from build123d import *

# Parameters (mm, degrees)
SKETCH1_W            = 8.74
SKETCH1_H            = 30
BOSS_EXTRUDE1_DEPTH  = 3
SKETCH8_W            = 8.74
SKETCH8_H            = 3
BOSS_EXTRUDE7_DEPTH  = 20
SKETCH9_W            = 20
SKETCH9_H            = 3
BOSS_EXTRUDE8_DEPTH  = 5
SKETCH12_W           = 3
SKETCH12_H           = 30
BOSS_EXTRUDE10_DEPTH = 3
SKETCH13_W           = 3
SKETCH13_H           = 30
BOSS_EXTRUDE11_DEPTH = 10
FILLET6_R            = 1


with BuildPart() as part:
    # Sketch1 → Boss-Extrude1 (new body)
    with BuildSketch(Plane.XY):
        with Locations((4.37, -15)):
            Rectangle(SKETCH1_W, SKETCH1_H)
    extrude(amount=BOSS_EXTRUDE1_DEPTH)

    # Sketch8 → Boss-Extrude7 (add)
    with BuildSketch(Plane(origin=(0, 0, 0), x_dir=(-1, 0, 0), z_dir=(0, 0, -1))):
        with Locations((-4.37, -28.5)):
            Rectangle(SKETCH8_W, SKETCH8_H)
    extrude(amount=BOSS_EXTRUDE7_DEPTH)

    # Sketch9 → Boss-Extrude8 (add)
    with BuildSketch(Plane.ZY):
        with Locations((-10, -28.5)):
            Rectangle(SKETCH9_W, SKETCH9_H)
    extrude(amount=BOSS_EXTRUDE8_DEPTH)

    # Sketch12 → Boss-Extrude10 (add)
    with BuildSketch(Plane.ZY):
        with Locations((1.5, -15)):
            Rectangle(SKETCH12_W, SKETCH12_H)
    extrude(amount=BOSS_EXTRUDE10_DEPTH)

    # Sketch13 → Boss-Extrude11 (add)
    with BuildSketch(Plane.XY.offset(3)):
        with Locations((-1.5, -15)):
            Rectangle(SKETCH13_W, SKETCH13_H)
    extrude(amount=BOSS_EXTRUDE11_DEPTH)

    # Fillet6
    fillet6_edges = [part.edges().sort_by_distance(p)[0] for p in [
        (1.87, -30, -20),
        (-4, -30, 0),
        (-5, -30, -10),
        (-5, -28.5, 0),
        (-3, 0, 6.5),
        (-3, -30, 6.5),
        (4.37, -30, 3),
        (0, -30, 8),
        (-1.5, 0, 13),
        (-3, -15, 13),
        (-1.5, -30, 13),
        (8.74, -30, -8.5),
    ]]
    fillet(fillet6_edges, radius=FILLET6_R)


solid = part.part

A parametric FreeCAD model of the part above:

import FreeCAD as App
import Part
import Sketcher
from FreeCAD import Vector
Q = App.Units.Quantity


def edges_at(feature, points):
    """Names of the edges that pass closest to the given points."""
    edges = feature.Shape.Edges
    near = lambda p: min(range(len(edges)), key=lambda i: edges[i].distToShape(Part.Vertex(*p))[0])
    return sorted({f"Edge{near(p) + 1}" for p in points})

doc = App.newDocument("Part")
body = doc.addObject("PartDesign::Body", "Body")

sketch1 = body.newObject("Sketcher::SketchObject", "Sketch")
sketch1.AttachmentSupport = (doc.getObject("XY_Plane"), [""])
sketch1.MapMode = "FlatFace"
sketch1.addGeometry([
    Part.LineSegment(Vector(0, 0, 0), Vector(0, -30, 0)),
    Part.LineSegment(Vector(0, -30, 0), Vector(9, -30, 0)),
    Part.LineSegment(Vector(9, -30, 0), Vector(9, 0, 0)),
    Part.LineSegment(Vector(9, 0, 0), Vector(0, 0, 0)),
], False)
sketch1.addConstraint([
    Sketcher.Constraint("Coincident", 0, 2, 1, 1),
    Sketcher.Constraint("Coincident", 1, 2, 2, 1),
    Sketcher.Constraint("Coincident", 2, 2, 3, 1),
    Sketcher.Constraint("Coincident", 3, 2, 0, 1),
    Sketcher.Constraint("Vertical", 0),
    Sketcher.Constraint("Horizontal", 1),
    Sketcher.Constraint("Vertical", 2),
    Sketcher.Constraint("Horizontal", 3),
    Sketcher.Constraint("Coincident", 3, 2, -1, 1),
    Sketcher.Constraint("DistanceY", 0, 2, 0, 1, Q("30 mm")),
    Sketcher.Constraint("DistanceX", 1, 1, 1, 2, Q("8.74 mm")),
])
pad1 = body.newObject("PartDesign::Pad", "Pad")
pad1.Profile = sketch1
pad1.Length = 3

sketch2 = body.newObject("Sketcher::SketchObject", "Sketch001")
sketch2.AttachmentSupport = (doc.getObject("XY_Plane"), [""])
sketch2.MapMode = "FlatFace"
sketch2.addGeometry([
    Part.LineSegment(Vector(8.7, -27, 0), Vector(8.7, -30, 0)),
    Part.LineSegment(Vector(8.7, -30, 0), Vector(0, -30, 0)),
    Part.LineSegment(Vector(0, -30, 0), Vector(0, -27, 0)),
    Part.LineSegment(Vector(0, -27, 0), Vector(8.7, -27, 0)),
], False)
sketch2.addConstraint([
    Sketcher.Constraint("Coincident", 0, 2, 1, 1),
    Sketcher.Constraint("Coincident", 1, 2, 2, 1),
    Sketcher.Constraint("Coincident", 2, 2, 3, 1),
    Sketcher.Constraint("Coincident", 3, 2, 0, 1),
    Sketcher.Constraint("Vertical", 0),
    Sketcher.Constraint("Horizontal", 1),
    Sketcher.Constraint("Vertical", 2),
    Sketcher.Constraint("Horizontal", 3),
    Sketcher.Constraint("PointOnObject", 1, 2, -2),
    Sketcher.Constraint("DistanceY", 0, 2, 0, 1, Q("3 mm")),
    Sketcher.Constraint("DistanceY", 0, 2, -1, 1, Q("30 mm")),
    Sketcher.Constraint("DistanceX", 1, 2, 1, 1, Q("8.74 mm")),
])
pad2 = body.newObject("PartDesign::Pad", "Pad001")
pad2.Profile = sketch2
pad2.Length = 20
pad2.Reversed = True

sketch3 = body.newObject("Sketcher::SketchObject", "Sketch002")
sketch3.AttachmentSupport = (doc.getObject("YZ_Plane"), [""])
sketch3.MapMode = "FlatFace"
sketch3.addGeometry([
    Part.LineSegment(Vector(-27, -20, 0), Vector(-30, -20, 0)),
    Part.LineSegment(Vector(-30, -20, 0), Vector(-30, 0, 0)),
    Part.LineSegment(Vector(-30, 0, 0), Vector(-27, 0, 0)),
    Part.LineSegment(Vector(-27, 0, 0), Vector(-27, -20, 0)),
], False)
sketch3.addConstraint([
    Sketcher.Constraint("Coincident", 0, 2, 1, 1),
    Sketcher.Constraint("Coincident", 1, 2, 2, 1),
    Sketcher.Constraint("Coincident", 2, 2, 3, 1),
    Sketcher.Constraint("Coincident", 3, 2, 0, 1),
    Sketcher.Constraint("Horizontal", 0),
    Sketcher.Constraint("Vertical", 1),
    Sketcher.Constraint("Horizontal", 2),
    Sketcher.Constraint("Vertical", 3),
    Sketcher.Constraint("PointOnObject", 1, 2, -1),
    Sketcher.Constraint("DistanceX", 0, 2, 0, 1, Q("3 mm")),
    Sketcher.Constraint("DistanceY", 1, 1, 1, 2, Q("20 mm")),
    Sketcher.Constraint("DistanceX", 0, 2, -1, 1, Q("30 mm")),
])
pad3 = body.newObject("PartDesign::Pad", "Pad002")
pad3.Profile = sketch3
pad3.Length = 5
pad3.Reversed = True

sketch4 = body.newObject("Sketcher::SketchObject", "Sketch003")
sketch4.AttachmentSupport = (doc.getObject("YZ_Plane"), [""])
sketch4.MapMode = "FlatFace"
sketch4.addGeometry([
    Part.LineSegment(Vector(0, 0, 0), Vector(-30, 0, 0)),
    Part.LineSegment(Vector(-30, 0, 0), Vector(-30, 3, 0)),
    Part.LineSegment(Vector(-30, 3, 0), Vector(0, 3, 0)),
    Part.LineSegment(Vector(0, 3, 0), Vector(0, 0, 0)),
], False)
sketch4.addConstraint([
    Sketcher.Constraint("Coincident", 0, 2, 1, 1),
    Sketcher.Constraint("Coincident", 1, 2, 2, 1),
    Sketcher.Constraint("Coincident", 2, 2, 3, 1),
    Sketcher.Constraint("Coincident", 3, 2, 0, 1),
    Sketcher.Constraint("Horizontal", 0),
    Sketcher.Constraint("Vertical", 1),
    Sketcher.Constraint("Horizontal", 2),
    Sketcher.Constraint("Vertical", 3),
    Sketcher.Constraint("Coincident", 3, 2, -1, 1),
    Sketcher.Constraint("DistanceX", 0, 2, 0, 1, Q("30 mm")),
    Sketcher.Constraint("DistanceY", 1, 1, 1, 2, Q("3 mm")),
])
pad4 = body.newObject("PartDesign::Pad", "Pad003")
pad4.Profile = sketch4
pad4.Length = 3
pad4.Reversed = True

sketch5 = body.newObject("Sketcher::SketchObject", "Sketch004")
sketch5.AttachmentSupport = (doc.getObject("XY_Plane"), [""])
sketch5.MapMode = "FlatFace"
sketch5.AttachmentOffset = App.Placement(Vector(0, 0, 3), App.Rotation())
sketch5.addGeometry([
    Part.LineSegment(Vector(-3, 0, 0), Vector(-3, -30, 0)),
    Part.LineSegment(Vector(-3, -30, 0), Vector(0, -30, 0)),
    Part.LineSegment(Vector(0, -30, 0), Vector(0, 0, 0)),
    Part.LineSegment(Vector(0, 0, 0), Vector(-3, 0, 0)),
], False)
sketch5.addConstraint([
    Sketcher.Constraint("Coincident", 0, 2, 1, 1),
    Sketcher.Constraint("Coincident", 1, 2, 2, 1),
    Sketcher.Constraint("Coincident", 2, 2, 3, 1),
    Sketcher.Constraint("Coincident", 3, 2, 0, 1),
    Sketcher.Constraint("Vertical", 0),
    Sketcher.Constraint("Horizontal", 1),
    Sketcher.Constraint("Vertical", 2),
    Sketcher.Constraint("Horizontal", 3),
    Sketcher.Constraint("Coincident", 2, 2, -1, 1),
    Sketcher.Constraint("DistanceX", 1, 1, 1, 2, Q("3 mm")),
    Sketcher.Constraint("DistanceY", 0, 2, 0, 1, Q("30 mm")),
])
pad5 = body.newObject("PartDesign::Pad", "Pad004")
pad5.Profile = sketch5
pad5.Length = 10
doc.recompute()

fillet = body.newObject("PartDesign::Fillet", "Fillet")
fillet.Base = (pad5, edges_at(pad5, [
    (1.87, -30, -20),
    (-4, -30, 0),
    (-5, -30, -10),
    (-5, -28.5, 0),
    (-3, 0, 6.5),
    (-3, -30, 6.5),
    (4.37, -30, 3),
    (0, -30, 8),
    (-1.5, 0, 13),
    (-3, -15, 13),
    (-1.5, -30, 13),
    (8.74, -30, -8.5),
]))
fillet.Radius = 1

doc.recompute()
